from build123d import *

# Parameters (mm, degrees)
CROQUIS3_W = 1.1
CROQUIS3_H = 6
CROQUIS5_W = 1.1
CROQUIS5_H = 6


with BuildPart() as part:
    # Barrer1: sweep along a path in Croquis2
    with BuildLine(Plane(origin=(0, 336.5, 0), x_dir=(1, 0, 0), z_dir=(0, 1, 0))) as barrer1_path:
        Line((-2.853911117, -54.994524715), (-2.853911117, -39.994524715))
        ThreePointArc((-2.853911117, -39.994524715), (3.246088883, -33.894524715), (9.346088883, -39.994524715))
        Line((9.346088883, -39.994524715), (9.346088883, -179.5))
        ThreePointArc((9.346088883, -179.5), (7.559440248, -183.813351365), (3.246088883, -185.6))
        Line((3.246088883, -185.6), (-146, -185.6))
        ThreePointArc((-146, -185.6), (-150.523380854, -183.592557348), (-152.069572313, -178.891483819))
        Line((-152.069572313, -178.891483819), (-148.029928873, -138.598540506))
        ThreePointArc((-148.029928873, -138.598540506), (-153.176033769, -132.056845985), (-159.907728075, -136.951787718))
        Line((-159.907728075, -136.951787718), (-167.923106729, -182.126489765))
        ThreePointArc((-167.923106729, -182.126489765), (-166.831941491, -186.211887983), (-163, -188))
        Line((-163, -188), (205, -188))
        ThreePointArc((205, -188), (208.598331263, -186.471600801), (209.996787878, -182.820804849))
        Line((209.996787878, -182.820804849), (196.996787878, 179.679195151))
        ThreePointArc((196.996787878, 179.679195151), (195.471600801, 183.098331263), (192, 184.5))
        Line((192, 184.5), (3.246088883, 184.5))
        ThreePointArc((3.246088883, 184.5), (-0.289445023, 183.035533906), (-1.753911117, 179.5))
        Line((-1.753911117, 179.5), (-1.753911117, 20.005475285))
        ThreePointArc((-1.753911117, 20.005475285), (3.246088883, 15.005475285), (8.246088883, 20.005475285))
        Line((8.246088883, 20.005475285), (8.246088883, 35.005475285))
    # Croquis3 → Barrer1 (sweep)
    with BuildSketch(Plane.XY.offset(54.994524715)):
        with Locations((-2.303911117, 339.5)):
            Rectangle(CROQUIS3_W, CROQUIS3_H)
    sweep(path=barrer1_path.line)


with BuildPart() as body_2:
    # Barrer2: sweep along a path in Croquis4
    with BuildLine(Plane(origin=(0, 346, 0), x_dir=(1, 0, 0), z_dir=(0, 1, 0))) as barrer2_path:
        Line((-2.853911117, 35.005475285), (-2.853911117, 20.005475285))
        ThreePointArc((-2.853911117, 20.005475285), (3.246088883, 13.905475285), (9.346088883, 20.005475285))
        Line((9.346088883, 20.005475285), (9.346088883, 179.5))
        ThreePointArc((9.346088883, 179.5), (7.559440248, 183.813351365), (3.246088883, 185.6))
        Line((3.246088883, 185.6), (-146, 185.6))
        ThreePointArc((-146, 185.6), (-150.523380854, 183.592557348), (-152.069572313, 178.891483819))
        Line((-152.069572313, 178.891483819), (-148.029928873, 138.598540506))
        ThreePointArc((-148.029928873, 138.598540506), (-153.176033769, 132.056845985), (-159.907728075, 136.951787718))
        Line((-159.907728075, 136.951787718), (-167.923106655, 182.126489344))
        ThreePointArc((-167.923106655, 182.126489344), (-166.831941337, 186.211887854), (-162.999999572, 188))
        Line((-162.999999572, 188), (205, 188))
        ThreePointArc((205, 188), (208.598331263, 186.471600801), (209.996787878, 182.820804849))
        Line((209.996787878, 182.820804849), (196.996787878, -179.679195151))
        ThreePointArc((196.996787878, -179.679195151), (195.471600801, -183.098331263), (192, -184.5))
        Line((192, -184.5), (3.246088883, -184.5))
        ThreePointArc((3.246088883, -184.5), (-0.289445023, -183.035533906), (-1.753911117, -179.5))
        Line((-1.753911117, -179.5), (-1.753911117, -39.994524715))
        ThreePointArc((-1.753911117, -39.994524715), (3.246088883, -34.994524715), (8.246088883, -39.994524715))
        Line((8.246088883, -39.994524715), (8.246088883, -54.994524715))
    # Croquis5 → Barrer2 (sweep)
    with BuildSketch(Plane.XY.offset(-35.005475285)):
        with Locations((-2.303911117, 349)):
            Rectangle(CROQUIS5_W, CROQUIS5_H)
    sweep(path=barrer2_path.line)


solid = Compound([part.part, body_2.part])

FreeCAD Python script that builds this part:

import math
import FreeCAD as App
import Part
import Sketcher
from FreeCAD import Vector


def add_polygon(sketch, points):
    """Adds a closed chain of lines whose ends are joined by coincident constraints."""
    first, n = sketch.GeometryCount, len(points)
    for a, b in zip(points, points[1:] + points[:1]):
        sketch.addGeometry(Part.LineSegment(App.Vector(*a, 0), App.Vector(*b, 0)), False)
    for i in range(n):
        sketch.addConstraint(Sketcher.Constraint("Coincident", first + i, 2, first + (i + 1) % n, 1))

doc = App.newDocument("Part")
body = doc.addObject("PartDesign::Body", "Body")

# Sketch on XY plane
sketch1 = body.newObject("Sketcher::SketchObject", "Sketch")
sketch1.AttachmentSupport = (doc.getObject("XY_Plane"), [""])
sketch1.MapMode = "FlatFace"
sketch1.AttachmentOffset = App.Placement(Vector(0, 0, 54.994525), App.Rotation())
add_polygon(sketch1, [(-2.9, 342.5), (-2.9, 336.5), (-1.8, 336.5), (-1.8, 342.5)])  # lines 0-3
sketch1.addConstraint(Sketcher.Constraint("Vertical", 0))
sketch1.addConstraint(Sketcher.Constraint("Horizontal", 1))
sketch1.addConstraint(Sketcher.Constraint("Vertical", 2))
sketch1.addConstraint(Sketcher.Constraint("Horizontal", 3))
sketch1.addConstraint(Sketcher.Constraint("DistanceY", 0, 2, 0, 1, 6.0))
sketch1.addConstraint(Sketcher.Constraint("DistanceX", 1, 1, 1, 2, 1.1))
sketch1.addConstraint(Sketcher.Constraint("DistanceY", -1, 1, 0, 2, 336.5))
sketch1.addConstraint(Sketcher.Constraint("DistanceX", 0, 2, -1, 1, 2.853911))

# Sketch on XZ plane
sketch2 = body.newObject("Sketcher::SketchObject", "Sketch001")
sketch2.AttachmentSupport = (doc.getObject("XZ_Plane"), [""])
sketch2.MapMode = "FlatFace"
sketch2.AttachmentOffset = App.Placement(Vector(0, 0, -336.5), App.Rotation())
sketch2.addGeometry(Part.LineSegment(Vector(-2.9, 55, 0), Vector(-2.9, 40, 0)), False)
sketch2.addGeometry(Part.ArcOfCircle(Part.Circle(Vector(3.2, 40, 0), Vector(0, 0, 1), 6.1), math.radians(180), math.radians(360)), False)
sketch2.addGeometry(Part.LineSegment(Vector(9.3, 40, 0), Vector(9.3, 179.5, 0)), False)
sketch2.addGeometry(Part.ArcOfCircle(Part.Circle(Vector(3.2, 179.5, 0), Vector(0, 0, 1), 6.1), math.radians(0), math.radians(90)), False)
sketch2.addGeometry(Part.LineSegment(Vector(3.2, 185.6, 0), Vector(-146, 185.6, 0)), False)
sketch2.addGeometry(Part.ArcOfCircle(Part.Circle(Vector(-146, 179.5, 0), Vector(0, 0, 1), 6.1), math.radians(90), math.radians(186)), False)
sketch2.addGeometry(Part.LineSegment(Vector(-152.1, 178.9, 0), Vector(-148, 138.6, 0)), False)
sketch2.addGeometry(Part.ArcOfCircle(Part.Circle(Vector(-154, 138, 0), Vector(0, 0, 1), 6), math.radians(-170), math.radians(6)), False)
sketch2.addGeometry(Part.LineSegment(Vector(-159.9, 137, 0), Vector(-167.9, 182.1, 0)), False)
sketch2.addGeometry(Part.ArcOfCircle(Part.Circle(Vector(-163, 183, 0), Vector(0, 0, 1), 5), math.radians(90), math.radians(190)), False)
sketch2.addGeometry(Part.LineSegment(Vector(-163, 188, 0), Vector(205, 188, 0)), False)
sketch2.addGeometry(Part.ArcOfCircle(Part.Circle(Vector(205, 183, 0), Vector(0, 0, 1), 5), math.radians(-2), math.radians(90)), False)
sketch2.addGeometry(Part.LineSegment(Vector(210, 182.8, 0), Vector(197, -179.7, 0)), False)
sketch2.addGeometry(Part.ArcOfCircle(Part.Circle(Vector(192, -179.5, 0), Vector(0, 0, 1), 5), math.radians(-90), math.radians(-2)), False)
sketch2.addGeometry(Part.LineSegment(Vector(192, -184.5, 0), Vector(3.2, -184.5, 0)), False)
sketch2.addGeometry(Part.ArcOfCircle(Part.Circle(Vector(3.2, -179.5, 0), Vector(0, 0, 1), 5), math.radians(180), math.radians(270)), False)
sketch2.addGeometry(Part.LineSegment(Vector(-1.8, -179.5, 0), Vector(-1.8, -20, 0)), False)
sketch2.addGeometry(Part.ArcOfCircle(Part.Circle(Vector(3.2, -20, 0), Vector(0, 0, 1), 5), math.radians(0), math.radians(180)), False)
sketch2.addGeometry(Part.LineSegment(Vector(8.2, -20, 0), Vector(8.2, -35, 0)), False)
sketch2.addConstraint(Sketcher.Constraint("Tangent", 0, 2, 1, 1))
sketch2.addConstraint(Sketcher.Constraint("Tangent", 1, 2, 2, 1))
sketch2.addConstraint(Sketcher.Constraint("Tangent", 2, 2, 3, 1))
sketch2.addConstraint(Sketcher.Constraint("Tangent", 3, 2, 4, 1))
sketch2.addConstraint(Sketcher.Constraint("Tangent", 4, 2, 5, 1))
sketch2.addConstraint(Sketcher.Constraint("Tangent", 5, 2, 6, 1))
sketch2.addConstraint(Sketcher.Constraint("Tangent", 6, 2, 7, 2))
sketch2.addConstraint(Sketcher.Constraint("Tangent", 7, 1, 8, 1))
sketch2.addConstraint(Sketcher.Constraint("Tangent", 8, 2, 9, 2))
sketch2.addConstraint(Sketcher.Constraint("Tangent", 9, 1, 10, 1))
sketch2.addConstraint(Sketcher.Constraint("Tangent", 10, 2, 11, 2))
sketch2.addConstraint(Sketcher.Constraint("Tangent", 11, 1, 12, 1))
sketch2.addConstraint(Sketcher.Constraint("Tangent", 12, 2, 13, 2))
sketch2.addConstraint(Sketcher.Constraint("Tangent", 13, 1, 14, 1))
sketch2.addConstraint(Sketcher.Constraint("Tangent", 14, 2, 15, 2))
sketch2.addConstraint(Sketcher.Constraint("Tangent", 15, 1, 16, 1))
sketch2.addConstraint(Sketcher.Constraint("Tangent", 16, 2, 17, 2))
sketch2.addConstraint(Sketcher.Constraint("Tangent", 17, 1, 18, 1))
sketch2.addConstraint(Sketcher.Constraint("Vertical", 0))
sketch2.addConstraint(Sketcher.Constraint("Vertical", 2))
sketch2.addConstraint(Sketcher.Constraint("Horizontal", 4))
sketch2.addConstraint(Sketcher.Constraint("Horizontal", 10))
sketch2.addConstraint(Sketcher.Constraint("Horizontal", 14))
sketch2.addConstraint(Sketcher.Constraint("Vertical", 16))
sketch2.addConstraint(Sketcher.Constraint("Vertical", 18))
sketch2.addConstraint(Sketcher.Constraint("Equal", 1, 3))
sketch2.addConstraint(Sketcher.Constraint("Equal", 3, 5))
sketch2.addConstraint(Sketcher.Constraint("Equal", 9, 11))
sketch2.addConstraint(Sketcher.Constraint("Equal", 11, 13))
sketch2.addConstraint(Sketcher.Constraint("Equal", 13, 15))
sketch2.addConstraint(Sketcher.Constraint("Equal", 15, 17))
sketch2.addConstraint(Sketcher.Constraint("Symmetric", 3, 3, 15, 3, -1))
sketch2.addConstraint(Sketcher.Constraint("Equal", 0, 18))
sketch2.addConstraint(Sketcher.Constraint("Radius", 7, 6.0))
sketch2.addConstraint(Sketcher.Constraint("Radius", 9, 5.0))
sketch2.addConstraint(Sketcher.Constraint("Radius", 1, 6.1))
sketch2.addConstraint(Sketcher.Constraint("DistanceX", 10, 1, 10, 2, 368.0))
sketch2.addConstraint(Sketcher.Constraint("DistanceY", 0, 2, 0, 1, 15.0))
sketch2.addConstraint(Sketcher.Constraint("DistanceX", 5, 3, -1, 1, 146.0))
sketch2.addConstraint(Sketcher.Constraint("DistanceX", 7, 3, -1, 1, 154.0))
sketch2.addConstraint(Sketcher.Constraint("DistanceY", -1, 1, 7, 3, 138.0))
sketch2.addConstraint(Sketcher.Constraint("DistanceX", 9, 3, -1, 1, 163.0))
sketch2.addConstraint(Sketcher.Constraint("DistanceY", -1, 1, 9, 3, 183.0))
sketch2.addConstraint(Sketcher.Constraint("DistanceX", -1, 1, 13, 3, 192.0))
sketch2.addConstraint(Sketcher.Constraint("DistanceY", 13, 3, 3, 3, 359.0))
sketch2.addConstraint(Sketcher.Constraint("DistanceY", 17, 3, 1, 3, 60.0))
sketch2.addConstraint(Sketcher.Constraint("DistanceX", 4, 2, 4, 1, 149.246089))
sketch2.addConstraint(Sketcher.Constraint("DistanceY", 2, 1, 2, 2, 139.505475))
doc.recompute()

additivepipe = body.newObject("PartDesign::AdditivePipe", "AdditivePipe")
additivepipe.Profile = sketch1
additivepipe.Spine = (sketch2, ["Edge1", "Edge2", "Edge3", "Edge4", "Edge5", "Edge6", "Edge7", "Edge8", "Edge9", "Edge10", "Edge11", "Edge12", "Edge13", "Edge14", "Edge15", "Edge16", "Edge17", "Edge18", "Edge19"])
body2 = doc.addObject("PartDesign::Body", "Body001")

# Sketch on XY plane
sketch3 = body2.newObject("Sketcher::SketchObject", "Sketch002")
sketch3.AttachmentSupport = (doc.getObject("XY_Plane001"), [""])
sketch3.MapMode = "FlatFace"
sketch3.AttachmentOffset = App.Placement(Vector(0, 0, -35.005475), App.Rotation())
add_polygon(sketch3, [(-2.9, 352), (-2.9, 346), (-1.8, 346), (-1.8, 352)])  # lines 0-3
sketch3.addConstraint(Sketcher.Constraint("Vertical", 0))
sketch3.addConstraint(Sketcher.Constraint("Horizontal", 1))
sketch3.addConstraint(Sketcher.Constraint("Vertical", 2))
sketch3.addConstraint(Sketcher.Constraint("Horizontal", 3))
sketch3.addConstraint(Sketcher.Constraint("DistanceY", 0, 2, 0, 1, 6.0))
sketch3.addConstraint(Sketcher.Constraint("DistanceX", 1, 1, 1, 2, 1.1))
sketch3.addConstraint(Sketcher.Constraint("DistanceY", -1, 1, 0, 2, 346.0))
sketch3.addConstraint(Sketcher.Constraint("DistanceX", 0, 2, -1, 1, 2.853911))

# Sketch on XZ plane
sketch4 = body2.newObject("Sketcher::SketchObject", "Sketch003")
sketch4.AttachmentSupport = (doc.getObject("XZ_Plane001"), [""])
sketch4.MapMode = "FlatFace"
sketch4.AttachmentOffset = App.Placement(Vector(0, 0, -346), App.Rotation())
sketch4.addGeometry(Part.LineSegment(Vector(-3, -35, 0), Vector(-3, -20, 0)), False)
sketch4.addGeometry(Part.ArcOfCircle(Part.Circle(Vector(3, -20, 0), Vector(0, 0, 1), 6), math.radians(0), math.radians(180)), False)
sketch4.addGeometry(Part.LineSegment(Vector(9, -20, 0), Vector(9, -180, 0)), False)
sketch4.addGeometry(Part.ArcOfCircle(Part.Circle(Vector(3, -179, 0), Vector(0, 0, 1), 6), math.radians(-90), math.radians(0)), False)
sketch4.addGeometry(Part.LineSegment(Vector(3, -186, 0), Vector(-146, -186, 0)), False)
sketch4.addGeometry(Part.ArcOfCircle(Part.Circle(Vector(-146, -179, 0), Vector(0, 0, 1), 6), math.radians(174), math.radians(270)), False)
sketch4.addGeometry(Part.LineSegment(Vector(-152, -179, 0), Vector(-148, -139, 0)), False)
sketch4.addGeometry(Part.ArcOfCircle(Part.Circle(Vector(-154, -138, 0), Vector(0, 0, 1), 6), math.radians(-6), math.radians(170)), False)
sketch4.addGeometry(Part.LineSegment(Vector(-160, -137, 0), Vector(-168, -182, 0)), False)
sketch4.addGeometry(Part.ArcOfCircle(Part.Circle(Vector(-163, -183, 0), Vector(0, 0, 1), 5), math.radians(170), math.radians(270)), False)
sketch4.addGeometry(Part.LineSegment(Vector(-163, -188, 0), Vector(205, -188, 0)), False)
sketch4.addGeometry(Part.ArcOfCircle(Part.Circle(Vector(205, -183, 0), Vector(0, 0, 1), 5), math.radians(-90), math.radians(2)), False)
sketch4.addGeometry(Part.LineSegment(Vector(210, -183, 0), Vector(197, 180, 0)), False)
sketch4.addGeometry(Part.ArcOfCircle(Part.Circle(Vector(192, 180, 0), Vector(0, 0, 1), 5), math.radians(2), math.radians(90)), False)
sketch4.addGeometry(Part.LineSegment(Vector(192, 184, 0), Vector(3, 184, 0)), False)
sketch4.addGeometry(Part.ArcOfCircle(Part.Circle(Vector(3, 180, 0), Vector(0, 0, 1), 5), math.radians(90), math.radians(180)), False)
sketch4.addGeometry(Part.LineSegment(Vector(-2, 180, 0), Vector(-2, 40, 0)), False)
sketch4.addGeometry(Part.ArcOfCircle(Part.Circle(Vector(3, 40, 0), Vector(0, 0, 1), 5), math.radians(180), math.radians(360)), False)
sketch4.addGeometry(Part.LineSegment(Vector(8, 40, 0), Vector(8, 55, 0)), False)
sketch4.addConstraint(Sketcher.Constraint("Tangent", 0, 2, 1, 2))
sketch4.addConstraint(Sketcher.Constraint("Tangent", 1, 1, 2, 1))
sketch4.addConstraint(Sketcher.Constraint("Tangent", 2, 2, 3, 2))
sketch4.addConstraint(Sketcher.Constraint("Tangent", 3, 1, 4, 1))
sketch4.addConstraint(Sketcher.Constraint("Tangent", 4, 2, 5, 2))
sketch4.addConstraint(Sketcher.Constraint("Tangent", 5, 1, 6, 1))
sketch4.addConstraint(Sketcher.Constraint("Tangent", 6, 2, 7, 1))
sketch4.addConstraint(Sketcher.Constraint("Tangent", 7, 2, 8, 1))
sketch4.addConstraint(Sketcher.Constraint("Tangent", 8, 2, 9, 1))
sketch4.addConstraint(Sketcher.Constraint("Tangent", 9, 2, 10, 1))
sketch4.addConstraint(Sketcher.Constraint("Tangent", 10, 2, 11, 1))
sketch4.addConstraint(Sketcher.Constraint("Tangent", 11, 2, 12, 1))
sketch4.addConstraint(Sketcher.Constraint("Tangent", 12, 2, 13, 1))
sketch4.addConstraint(Sketcher.Constraint("Tangent", 13, 2, 14, 1))
sketch4.addConstraint(Sketcher.Constraint("Tangent", 14, 2, 15, 1))
sketch4.addConstraint(Sketcher.Constraint("Tangent", 15, 2, 16, 1))
sketch4.addConstraint(Sketcher.Constraint("Tangent", 16, 2, 17, 1))
sketch4.addConstraint(Sketcher.Constraint("Tangent", 17, 2, 18, 1))
sketch4.addConstraint(Sketcher.Constraint("Vertical", 0))
sketch4.addConstraint(Sketcher.Constraint("Vertical", 2))
sketch4.addConstraint(Sketcher.Constraint("Horizontal", 4))
sketch4.addConstraint(Sketcher.Constraint("Horizontal", 10))
sketch4.addConstraint(Sketcher.Constraint("Horizontal", 14))
sketch4.addConstraint(Sketcher.Constraint("Vertical", 16))
sketch4.addConstraint(Sketcher.Constraint("Vertical", 18))
sketch4.addConstraint(Sketcher.Constraint("Equal", 1, 3))
sketch4.addConstraint(Sketcher.Constraint("Equal", 3, 5))
sketch4.addConstraint(Sketcher.Constraint("Equal", 9, 11))
sketch4.addConstraint(Sketcher.Constraint("Equal", 11, 13))
sketch4.addConstraint(Sketcher.Constraint("Equal", 13, 15))
sketch4.addConstraint(Sketcher.Constraint("Equal", 15, 17))
sketch4.addConstraint(Sketcher.Constraint("Symmetric", 3, 3, 15, 3, -1))
sketch4.addConstraint(Sketcher.Constraint("Equal", 0, 18))
sketch4.addConstraint(Sketcher.Constraint("Radius", 7, 6.0))
sketch4.addConstraint(Sketcher.Constraint("Radius", 9, 5.0))
sketch4.addConstraint(Sketcher.Constraint("Radius", 1, 6.1))
sketch4.addConstraint(Sketcher.Constraint("DistanceX", 10, 1, 10, 2, 368.0))
sketch4.addConstraint(Sketcher.Constraint("DistanceY", 0, 1, 0, 2, 15.0))
sketch4.addConstraint(Sketcher.Constraint("DistanceX", 5, 3, -1, 1, 146.0))
sketch4.addConstraint(Sketcher.Constraint("DistanceX", 7, 3, -1, 1, 154.0))
sketch4.addConstraint(Sketcher.Constraint("DistanceY", 7, 3, -1, 1, 138.0))
sketch4.addConstraint(Sketcher.Constraint("DistanceX", 9, 3, -1, 1, 163.0))
sketch4.addConstraint(Sketcher.Constraint("DistanceY", 9, 3, -1, 1, 183.0))
sketch4.addConstraint(Sketcher.Constraint("DistanceX", -1, 1, 13, 3, 192.0))
sketch4.addConstraint(Sketcher.Constraint("DistanceY", 3, 3, 13, 3, 359.0))
sketch4.addConstraint(Sketcher.Constraint("DistanceY", 1, 3, 17, 3, 60.0))
sketch4.addConstraint(Sketcher.Constraint("DistanceX", 4, 2, 4, 1, 149.246089))
sketch4.addConstraint(Sketcher.Constraint("DistanceY", 2, 2, 2, 1, 159.494525))
doc.recompute()

additivepipe2 = body2.newObject("PartDesign::AdditivePipe", "AdditivePipe001")
additivepipe2.Profile = sketch3
additivepipe2.Spine = (sketch4, ["Edge1", "Edge2", "Edge3", "Edge4", "Edge5", "Edge6", "Edge7", "Edge8", "Edge9", "Edge10", "Edge11", "Edge12", "Edge13", "Edge14", "Edge15", "Edge16", "Edge17", "Edge18", "Edge19"])

doc.recompute()
